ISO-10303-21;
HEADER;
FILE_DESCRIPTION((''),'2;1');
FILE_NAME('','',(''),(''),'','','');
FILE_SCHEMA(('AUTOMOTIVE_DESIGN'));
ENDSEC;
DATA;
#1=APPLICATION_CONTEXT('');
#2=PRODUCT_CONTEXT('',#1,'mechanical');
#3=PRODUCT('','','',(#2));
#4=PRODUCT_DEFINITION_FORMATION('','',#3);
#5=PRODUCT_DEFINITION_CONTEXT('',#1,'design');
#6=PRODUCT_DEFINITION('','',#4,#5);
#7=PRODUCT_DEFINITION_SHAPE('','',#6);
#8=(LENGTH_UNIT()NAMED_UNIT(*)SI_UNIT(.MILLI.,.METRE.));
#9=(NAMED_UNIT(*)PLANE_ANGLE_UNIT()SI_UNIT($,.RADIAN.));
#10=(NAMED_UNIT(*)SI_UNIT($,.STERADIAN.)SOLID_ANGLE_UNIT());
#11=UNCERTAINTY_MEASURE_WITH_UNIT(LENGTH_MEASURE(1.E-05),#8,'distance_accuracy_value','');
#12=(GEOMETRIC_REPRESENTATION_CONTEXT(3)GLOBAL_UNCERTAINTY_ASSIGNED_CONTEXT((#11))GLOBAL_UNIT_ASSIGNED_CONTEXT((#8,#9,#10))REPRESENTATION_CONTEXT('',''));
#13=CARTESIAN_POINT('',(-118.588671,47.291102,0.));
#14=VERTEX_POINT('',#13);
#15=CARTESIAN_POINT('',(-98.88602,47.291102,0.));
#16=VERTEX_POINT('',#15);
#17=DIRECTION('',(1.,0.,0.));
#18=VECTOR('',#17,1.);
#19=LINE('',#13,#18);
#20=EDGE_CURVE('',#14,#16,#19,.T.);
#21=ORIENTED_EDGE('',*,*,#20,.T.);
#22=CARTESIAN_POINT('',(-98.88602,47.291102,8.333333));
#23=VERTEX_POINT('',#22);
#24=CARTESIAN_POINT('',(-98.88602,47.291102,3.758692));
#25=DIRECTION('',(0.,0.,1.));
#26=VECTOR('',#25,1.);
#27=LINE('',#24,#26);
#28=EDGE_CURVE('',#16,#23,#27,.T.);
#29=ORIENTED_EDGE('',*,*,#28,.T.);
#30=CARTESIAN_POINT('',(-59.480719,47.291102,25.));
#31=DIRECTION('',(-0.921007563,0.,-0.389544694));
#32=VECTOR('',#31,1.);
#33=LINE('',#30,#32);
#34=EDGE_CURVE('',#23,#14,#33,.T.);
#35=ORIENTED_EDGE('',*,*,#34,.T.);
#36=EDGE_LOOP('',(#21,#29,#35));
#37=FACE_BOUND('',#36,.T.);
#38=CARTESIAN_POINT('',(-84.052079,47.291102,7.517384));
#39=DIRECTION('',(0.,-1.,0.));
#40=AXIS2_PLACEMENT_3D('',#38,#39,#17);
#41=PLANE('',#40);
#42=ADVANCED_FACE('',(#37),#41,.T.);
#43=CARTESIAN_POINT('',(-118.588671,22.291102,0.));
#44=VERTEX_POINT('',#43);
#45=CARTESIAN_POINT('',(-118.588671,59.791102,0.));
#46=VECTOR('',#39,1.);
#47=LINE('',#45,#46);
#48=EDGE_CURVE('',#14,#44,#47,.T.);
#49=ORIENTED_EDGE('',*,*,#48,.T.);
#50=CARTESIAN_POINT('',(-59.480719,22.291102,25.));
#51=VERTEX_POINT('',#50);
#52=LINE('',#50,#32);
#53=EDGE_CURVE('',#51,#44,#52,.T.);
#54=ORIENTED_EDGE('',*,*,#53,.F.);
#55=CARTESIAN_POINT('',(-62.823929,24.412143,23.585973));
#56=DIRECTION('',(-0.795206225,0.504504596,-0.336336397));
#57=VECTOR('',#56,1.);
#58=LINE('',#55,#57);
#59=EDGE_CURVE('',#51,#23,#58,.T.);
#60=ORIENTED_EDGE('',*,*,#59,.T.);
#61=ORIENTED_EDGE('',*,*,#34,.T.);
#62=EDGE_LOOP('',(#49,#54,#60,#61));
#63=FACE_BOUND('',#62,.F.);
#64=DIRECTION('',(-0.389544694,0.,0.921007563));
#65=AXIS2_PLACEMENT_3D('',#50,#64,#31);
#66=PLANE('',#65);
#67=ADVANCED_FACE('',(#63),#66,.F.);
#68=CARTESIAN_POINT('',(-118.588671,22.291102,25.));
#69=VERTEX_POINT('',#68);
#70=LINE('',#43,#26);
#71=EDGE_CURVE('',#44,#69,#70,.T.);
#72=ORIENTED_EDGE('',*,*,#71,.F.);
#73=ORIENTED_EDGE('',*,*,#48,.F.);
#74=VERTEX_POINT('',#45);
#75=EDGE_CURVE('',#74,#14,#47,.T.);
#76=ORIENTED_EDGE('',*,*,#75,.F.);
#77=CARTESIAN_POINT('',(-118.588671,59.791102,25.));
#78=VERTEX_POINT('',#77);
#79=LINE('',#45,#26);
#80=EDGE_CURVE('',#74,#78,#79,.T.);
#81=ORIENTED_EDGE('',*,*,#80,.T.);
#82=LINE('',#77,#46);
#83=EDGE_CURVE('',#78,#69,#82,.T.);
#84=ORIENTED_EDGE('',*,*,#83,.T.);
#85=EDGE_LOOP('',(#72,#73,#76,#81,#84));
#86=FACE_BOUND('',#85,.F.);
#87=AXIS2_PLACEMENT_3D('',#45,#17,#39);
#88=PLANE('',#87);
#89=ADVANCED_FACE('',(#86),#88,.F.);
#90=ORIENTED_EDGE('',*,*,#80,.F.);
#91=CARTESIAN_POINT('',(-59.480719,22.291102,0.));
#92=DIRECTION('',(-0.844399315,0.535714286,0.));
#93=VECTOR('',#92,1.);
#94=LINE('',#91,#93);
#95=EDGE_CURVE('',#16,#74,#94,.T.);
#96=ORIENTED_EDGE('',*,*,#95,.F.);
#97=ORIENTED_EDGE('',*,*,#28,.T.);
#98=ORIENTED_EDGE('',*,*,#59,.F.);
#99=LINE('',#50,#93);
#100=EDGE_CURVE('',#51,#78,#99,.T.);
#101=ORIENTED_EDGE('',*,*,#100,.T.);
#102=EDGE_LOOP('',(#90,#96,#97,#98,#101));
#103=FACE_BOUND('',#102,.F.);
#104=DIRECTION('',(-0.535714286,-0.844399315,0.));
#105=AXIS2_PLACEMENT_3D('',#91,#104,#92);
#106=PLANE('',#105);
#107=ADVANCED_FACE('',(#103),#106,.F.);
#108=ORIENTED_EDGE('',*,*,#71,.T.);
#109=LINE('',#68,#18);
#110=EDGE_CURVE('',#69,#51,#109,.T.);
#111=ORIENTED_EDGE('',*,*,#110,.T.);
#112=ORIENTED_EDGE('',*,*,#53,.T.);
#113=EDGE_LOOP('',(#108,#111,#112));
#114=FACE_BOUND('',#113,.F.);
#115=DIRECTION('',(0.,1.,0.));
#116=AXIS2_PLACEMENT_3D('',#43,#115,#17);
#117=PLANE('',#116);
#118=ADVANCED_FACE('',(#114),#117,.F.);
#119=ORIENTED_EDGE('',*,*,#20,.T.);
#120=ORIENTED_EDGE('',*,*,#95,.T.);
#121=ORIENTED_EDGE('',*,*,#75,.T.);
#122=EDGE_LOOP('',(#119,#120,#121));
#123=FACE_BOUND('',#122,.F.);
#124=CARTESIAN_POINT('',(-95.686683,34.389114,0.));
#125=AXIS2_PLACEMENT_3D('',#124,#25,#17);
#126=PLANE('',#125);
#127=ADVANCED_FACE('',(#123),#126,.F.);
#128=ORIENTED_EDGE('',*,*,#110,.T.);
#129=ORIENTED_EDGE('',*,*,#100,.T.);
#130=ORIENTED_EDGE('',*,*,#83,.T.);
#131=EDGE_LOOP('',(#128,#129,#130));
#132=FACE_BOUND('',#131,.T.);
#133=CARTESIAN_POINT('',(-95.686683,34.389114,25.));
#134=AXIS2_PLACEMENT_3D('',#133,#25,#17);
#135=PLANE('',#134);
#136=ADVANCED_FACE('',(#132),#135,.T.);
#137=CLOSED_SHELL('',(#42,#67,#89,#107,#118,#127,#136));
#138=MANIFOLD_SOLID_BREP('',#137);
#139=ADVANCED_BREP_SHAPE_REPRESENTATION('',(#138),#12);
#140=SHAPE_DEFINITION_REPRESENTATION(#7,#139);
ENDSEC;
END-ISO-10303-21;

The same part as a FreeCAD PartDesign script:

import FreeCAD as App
import Part
import Sketcher
Q = App.Units.Quantity


def add_polygon(sketch, points):
    """Adds a closed chain of lines whose ends are joined by coincident constraints."""
    first, n = sketch.GeometryCount, len(points)
    for a, b in zip(points, points[1:] + points[:1]):
        sketch.addGeometry(Part.LineSegment(App.Vector(*a, 0), App.Vector(*b, 0)), False)
    for i in range(n):
        sketch.addConstraint(Sketcher.Constraint("Coincident", first + i, 2, first + (i + 1) % n, 1))

doc = App.newDocument("Part")
body = doc.addObject("PartDesign::Body", "Body")

# Sketch on XY plane
sketch1 = doc.addObject("Sketcher::SketchObject", "Sketch")
body.addObject(sketch1)
sketch1.AttachmentSupport = (doc.XY_Plane, [""])
sketch1.MapMode = "FlatFace"
add_polygon(sketch1, [(-59, 22), (-119, 60), (-119, 22)])  # lines 0-2
sketch1.addConstraint(Sketcher.Constraint("Vertical", 1))
sketch1.addConstraint(Sketcher.Constraint("Horizontal", 2))
sketch1.addConstraint(Sketcher.Constraint("Distance", 0, Q("70 mm")))
sketch1.addConstraint(Sketcher.Constraint("DistanceY", 1, 2, 1, 1, Q("37.5 mm")))
sketch1.addConstraint(Sketcher.Constraint("DistanceY", -1, 1, 1, 2, Q("22.291102 mm")))
sketch1.addConstraint(Sketcher.Constraint("DistanceX", 0, 2, -1, 1, Q("118.588671 mm")))
pad1 = doc.addObject("PartDesign::Pad", "Pad")
body.addObject(pad1)
pad1.Profile = sketch1
pad1.Length = 25

# Sketch on XZ plane
sketch2 = doc.addObject("Sketcher::SketchObject", "Sketch001")
body.addObject(sketch2)
sketch2.AttachmentSupport = (doc.XZ_Plane, [""])
sketch2.MapMode = "FlatFace"
sketch2.AttachmentOffset = App.Placement(App.Vector(0, 0, -22.291102), App.Rotation())
add_polygon(sketch2, [(-59, 25), (-119, 0), (-59, 0)])  # lines 0-2
sketch2.addConstraint(Sketcher.Constraint("Horizontal", 1))
sketch2.addConstraint(Sketcher.Constraint("Vertical", 2))
sketch2.addConstraint(Sketcher.Constraint("PointOnObject", 0, 2, -1))
sketch2.addConstraint(Sketcher.Constraint("DistanceY", 2, 1, 2, 2, Q("25 mm")))
sketch2.addConstraint(Sketcher.Constraint("Distance", 0, Q("64.177488 mm")))
sketch2.addConstraint(Sketcher.Constraint("DistanceX", 0, 2, -1, 1, Q("118.588671 mm")))
pocket1 = doc.addObject("PartDesign::Pocket", "Pocket")
body.addObject(pocket1)
pocket1.Profile = sketch2
pocket1.Length = 25

doc.recompute()
